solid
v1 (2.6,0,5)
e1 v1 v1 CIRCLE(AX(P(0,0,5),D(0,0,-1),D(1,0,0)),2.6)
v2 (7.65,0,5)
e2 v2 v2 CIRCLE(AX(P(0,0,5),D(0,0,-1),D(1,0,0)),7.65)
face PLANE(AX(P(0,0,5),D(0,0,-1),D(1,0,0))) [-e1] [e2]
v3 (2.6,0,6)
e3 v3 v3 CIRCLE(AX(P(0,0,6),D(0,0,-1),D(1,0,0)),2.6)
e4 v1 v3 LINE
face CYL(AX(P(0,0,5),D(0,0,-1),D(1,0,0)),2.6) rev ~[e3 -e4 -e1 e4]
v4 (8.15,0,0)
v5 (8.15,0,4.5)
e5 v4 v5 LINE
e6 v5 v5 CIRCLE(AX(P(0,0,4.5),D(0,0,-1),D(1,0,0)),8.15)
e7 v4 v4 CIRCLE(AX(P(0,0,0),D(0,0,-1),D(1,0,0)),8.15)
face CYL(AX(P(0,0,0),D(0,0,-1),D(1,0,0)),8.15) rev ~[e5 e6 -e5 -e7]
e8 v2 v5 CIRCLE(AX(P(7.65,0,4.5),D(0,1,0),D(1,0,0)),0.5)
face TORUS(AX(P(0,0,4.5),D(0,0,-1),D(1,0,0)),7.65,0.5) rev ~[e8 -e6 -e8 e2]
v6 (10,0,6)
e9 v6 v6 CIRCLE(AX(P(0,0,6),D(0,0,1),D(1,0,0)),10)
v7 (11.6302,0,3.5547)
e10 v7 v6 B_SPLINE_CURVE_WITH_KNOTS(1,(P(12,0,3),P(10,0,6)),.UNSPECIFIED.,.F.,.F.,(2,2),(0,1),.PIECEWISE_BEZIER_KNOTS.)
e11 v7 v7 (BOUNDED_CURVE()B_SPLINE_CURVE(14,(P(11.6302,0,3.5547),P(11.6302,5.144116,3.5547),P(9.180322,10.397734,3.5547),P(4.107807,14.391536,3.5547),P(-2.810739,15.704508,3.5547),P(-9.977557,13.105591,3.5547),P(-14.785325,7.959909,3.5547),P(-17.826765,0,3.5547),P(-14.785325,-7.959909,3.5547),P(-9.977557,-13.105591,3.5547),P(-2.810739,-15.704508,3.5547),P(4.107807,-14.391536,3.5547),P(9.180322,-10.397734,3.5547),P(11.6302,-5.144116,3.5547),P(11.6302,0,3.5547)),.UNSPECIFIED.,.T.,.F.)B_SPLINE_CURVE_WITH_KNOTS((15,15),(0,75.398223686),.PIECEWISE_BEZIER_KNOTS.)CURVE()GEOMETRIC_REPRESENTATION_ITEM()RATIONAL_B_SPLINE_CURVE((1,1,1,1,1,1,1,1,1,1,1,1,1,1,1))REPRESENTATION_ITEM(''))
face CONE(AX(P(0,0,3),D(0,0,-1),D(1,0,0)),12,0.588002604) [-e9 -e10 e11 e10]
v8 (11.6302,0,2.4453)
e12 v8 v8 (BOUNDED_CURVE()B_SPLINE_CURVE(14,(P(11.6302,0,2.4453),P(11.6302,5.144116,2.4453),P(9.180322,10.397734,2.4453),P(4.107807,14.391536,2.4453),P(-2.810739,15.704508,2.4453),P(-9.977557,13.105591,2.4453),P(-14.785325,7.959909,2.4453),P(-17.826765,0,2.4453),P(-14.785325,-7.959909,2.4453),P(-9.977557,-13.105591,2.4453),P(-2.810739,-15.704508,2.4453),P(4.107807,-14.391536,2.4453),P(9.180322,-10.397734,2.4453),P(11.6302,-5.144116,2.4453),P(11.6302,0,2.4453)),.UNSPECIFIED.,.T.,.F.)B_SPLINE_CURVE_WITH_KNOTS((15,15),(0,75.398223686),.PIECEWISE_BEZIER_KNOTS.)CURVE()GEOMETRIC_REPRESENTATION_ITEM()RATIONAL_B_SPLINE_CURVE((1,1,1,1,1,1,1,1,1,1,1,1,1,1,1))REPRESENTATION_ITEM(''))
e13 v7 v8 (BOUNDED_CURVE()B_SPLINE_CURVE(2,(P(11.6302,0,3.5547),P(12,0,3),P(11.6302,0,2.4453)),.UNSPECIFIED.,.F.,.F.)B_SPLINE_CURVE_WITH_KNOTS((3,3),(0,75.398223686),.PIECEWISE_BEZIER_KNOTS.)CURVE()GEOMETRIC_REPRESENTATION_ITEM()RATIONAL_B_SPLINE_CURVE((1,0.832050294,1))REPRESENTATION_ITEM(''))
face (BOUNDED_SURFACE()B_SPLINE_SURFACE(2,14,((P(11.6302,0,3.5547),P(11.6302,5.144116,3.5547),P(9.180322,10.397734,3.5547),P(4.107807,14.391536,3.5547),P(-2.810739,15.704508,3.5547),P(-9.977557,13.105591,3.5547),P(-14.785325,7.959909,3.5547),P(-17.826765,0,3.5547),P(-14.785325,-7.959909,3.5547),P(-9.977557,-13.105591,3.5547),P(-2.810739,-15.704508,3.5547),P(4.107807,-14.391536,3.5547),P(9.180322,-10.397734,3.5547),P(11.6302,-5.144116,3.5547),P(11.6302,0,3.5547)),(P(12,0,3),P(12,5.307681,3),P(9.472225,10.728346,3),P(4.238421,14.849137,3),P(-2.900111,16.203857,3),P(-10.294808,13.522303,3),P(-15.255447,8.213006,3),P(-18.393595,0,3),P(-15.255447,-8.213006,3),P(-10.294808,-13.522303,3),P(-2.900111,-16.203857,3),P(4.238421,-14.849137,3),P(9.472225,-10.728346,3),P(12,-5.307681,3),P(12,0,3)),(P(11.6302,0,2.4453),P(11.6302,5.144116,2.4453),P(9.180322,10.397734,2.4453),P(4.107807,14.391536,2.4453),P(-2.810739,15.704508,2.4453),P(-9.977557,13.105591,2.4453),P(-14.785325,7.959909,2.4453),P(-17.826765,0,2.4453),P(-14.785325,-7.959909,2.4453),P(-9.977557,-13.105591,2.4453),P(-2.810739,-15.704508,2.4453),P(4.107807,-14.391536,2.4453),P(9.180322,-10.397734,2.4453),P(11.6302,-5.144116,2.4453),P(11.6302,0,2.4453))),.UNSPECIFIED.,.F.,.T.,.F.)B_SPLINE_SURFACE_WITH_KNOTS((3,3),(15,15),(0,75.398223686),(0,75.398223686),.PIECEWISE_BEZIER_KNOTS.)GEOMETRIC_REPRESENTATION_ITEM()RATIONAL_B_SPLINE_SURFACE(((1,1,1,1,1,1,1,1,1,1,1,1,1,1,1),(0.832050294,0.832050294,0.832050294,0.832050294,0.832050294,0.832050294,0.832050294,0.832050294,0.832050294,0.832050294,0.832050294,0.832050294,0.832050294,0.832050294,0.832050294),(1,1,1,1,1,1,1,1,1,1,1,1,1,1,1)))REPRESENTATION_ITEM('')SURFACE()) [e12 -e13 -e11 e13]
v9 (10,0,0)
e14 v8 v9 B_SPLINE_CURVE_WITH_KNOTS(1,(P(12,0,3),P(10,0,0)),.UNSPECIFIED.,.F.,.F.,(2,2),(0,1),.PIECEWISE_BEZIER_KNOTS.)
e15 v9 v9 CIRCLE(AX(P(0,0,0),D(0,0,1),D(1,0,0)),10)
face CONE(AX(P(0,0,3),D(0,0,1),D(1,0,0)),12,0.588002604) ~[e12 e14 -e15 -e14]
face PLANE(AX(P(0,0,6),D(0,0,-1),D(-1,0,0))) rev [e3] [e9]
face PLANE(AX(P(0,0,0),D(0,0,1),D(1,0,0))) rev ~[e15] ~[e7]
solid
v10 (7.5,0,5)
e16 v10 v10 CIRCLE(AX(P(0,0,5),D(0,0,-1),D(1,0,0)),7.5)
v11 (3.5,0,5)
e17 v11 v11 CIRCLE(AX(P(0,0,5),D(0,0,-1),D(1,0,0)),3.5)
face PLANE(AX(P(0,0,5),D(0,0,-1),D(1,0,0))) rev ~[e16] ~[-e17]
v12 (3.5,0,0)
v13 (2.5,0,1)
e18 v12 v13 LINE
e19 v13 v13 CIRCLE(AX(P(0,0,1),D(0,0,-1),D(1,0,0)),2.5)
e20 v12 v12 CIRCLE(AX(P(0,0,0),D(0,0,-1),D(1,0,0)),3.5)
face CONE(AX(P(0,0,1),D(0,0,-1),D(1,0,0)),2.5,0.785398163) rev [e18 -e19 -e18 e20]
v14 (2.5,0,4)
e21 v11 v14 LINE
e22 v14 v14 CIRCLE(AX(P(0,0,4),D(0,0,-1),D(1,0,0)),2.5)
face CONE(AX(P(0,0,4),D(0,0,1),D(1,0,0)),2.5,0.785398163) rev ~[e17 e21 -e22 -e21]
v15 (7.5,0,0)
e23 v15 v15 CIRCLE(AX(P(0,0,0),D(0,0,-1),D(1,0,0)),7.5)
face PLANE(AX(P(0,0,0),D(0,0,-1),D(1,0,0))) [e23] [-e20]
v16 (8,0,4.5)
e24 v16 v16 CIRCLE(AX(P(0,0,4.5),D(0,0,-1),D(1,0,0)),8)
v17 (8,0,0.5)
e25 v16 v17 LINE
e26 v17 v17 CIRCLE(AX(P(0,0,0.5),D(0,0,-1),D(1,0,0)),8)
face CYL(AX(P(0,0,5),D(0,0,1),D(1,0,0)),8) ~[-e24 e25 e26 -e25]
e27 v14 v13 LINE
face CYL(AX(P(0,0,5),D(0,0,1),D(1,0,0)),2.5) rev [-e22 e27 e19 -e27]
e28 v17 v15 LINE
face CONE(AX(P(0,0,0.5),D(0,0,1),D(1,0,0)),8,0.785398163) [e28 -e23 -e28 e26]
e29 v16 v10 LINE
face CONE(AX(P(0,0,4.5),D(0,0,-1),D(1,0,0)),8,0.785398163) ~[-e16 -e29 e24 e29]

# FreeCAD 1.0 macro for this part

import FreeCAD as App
import Part
import Sketcher
from FreeCAD import Vector
Q = App.Units.Quantity


def edges_at(feature, points):
    """Names of the edges that pass closest to the given points."""
    edges = feature.Shape.Edges
    near = lambda p: min(range(len(edges)), key=lambda i: edges[i].distToShape(Part.Vertex(*p))[0])
    return sorted({f"Edge{near(p) + 1}" for p in points})

doc = App.newDocument("Part")
body = doc.addObject("PartDesign::Body", "Body")

sketch1 = doc.addObject("Sketcher::SketchObject", "Sketch")
body.addObject(sketch1)
sketch1.AttachmentSupport = (doc.XY_Plane, [""])
sketch1.MapMode = "FlatFace"
sketch1.AttachmentOffset = App.Placement(Vector(0, 0, 3), App.Rotation())
sketch1.addGeometry(Part.Circle(Vector(0, 0, 0), Vector(0, 0, 1), 12), False)
sketch1.addConstraint([
    Sketcher.Constraint("Coincident", 0, 3, -1, 1),
    Sketcher.Constraint("Diameter", 0, Q("24 mm")),
])

sketch2 = doc.addObject("Sketcher::SketchObject", "Sketch001")
body.addObject(sketch2)
sketch2.AttachmentSupport = (doc.XY_Plane, [""])
sketch2.MapMode = "FlatFace"
sketch2.addGeometry(Part.Circle(Vector(0, 0, 0), Vector(0, 0, 1), 10), False)
sketch2.addConstraint([
    Sketcher.Constraint("Coincident", 0, 3, -1, 1),
    Sketcher.Constraint("Diameter", 0, Q("20 mm")),
])

additiveloft = doc.addObject("PartDesign::AdditiveLoft", "AdditiveLoft")
body.addObject(additiveloft)
additiveloft.Profile = sketch1
additiveloft.Sections = [sketch2]
body2 = doc.addObject("PartDesign::Body", "Body001")
doc.recompute()

body2.BaseFeature = body
doc.recompute()

mirroring = doc.addObject("Part::Mirroring", "Mirroring")
mirroring.Source = body
mirroring.Base = Vector(0, 0, 3)
mirroring.Normal = Vector(0, 0, 1)
body3 = doc.addObject("PartDesign::Body", "Body002")
body3.BaseFeature = mirroring
boolean = doc.addObject("PartDesign::Boolean", "Boolean")
body2.addObject(boolean)
boolean.Type = "Fuse"
boolean.addObjects([body3])
doc.recompute()

sketch3 = doc.addObject("Sketcher::SketchObject", "Sketch002")
body2.addObject(sketch3)
sketch3.AttachmentSupport = (doc.getObject("XY_Plane001"), [""])
sketch3.MapMode = "FlatFace"
sketch3.addGeometry(Part.Circle(Vector(0, 0, 0), Vector(0, 0, 1), 8), False)
sketch3.addConstraint([
    Sketcher.Constraint("Coincident", 0, 3, -1, 1),
    Sketcher.Constraint("Diameter", 0, Q("16.3 mm")),
])
pocket1 = doc.addObject("PartDesign::Pocket", "Pocket")
body2.addObject(pocket1)
pocket1.Profile = sketch3
pocket1.Length = 5
pocket1.Reversed = True

sketch4 = doc.addObject("Sketcher::SketchObject", "Sketch003")
body2.addObject(sketch4)
sketch4.AttachmentSupport = (doc.getObject("XY_Plane001"), [""])
sketch4.MapMode = "FlatFace"
sketch4.AttachmentOffset = App.Placement(Vector(0, 0, 5), App.Rotation())
sketch4.addGeometry(Part.Circle(Vector(0, 0, 0), Vector(0, 0, 1), 2.6), False)
sketch4.addConstraint([
    Sketcher.Constraint("Coincident", 0, 3, -1, 1),
    Sketcher.Constraint("Diameter", 0, Q("5.2 mm")),
])
pocket2 = doc.addObject("PartDesign::Pocket", "Pocket001")
body2.addObject(pocket2)
pocket2.Profile = sketch4
pocket2.Type = "ThroughAll"
pocket2.Reversed = True
doc.recompute()

fillet = doc.addObject("PartDesign::Fillet", "Fillet")
body2.addObject(fillet)
fillet.Base = (pocket2, edges_at(pocket2, [(-12, 0, 3)]))
fillet.Radius = 1
doc.recompute()

fillet2 = doc.addObject("PartDesign::Fillet", "Fillet001")
body2.addObject(fillet2)
fillet2.Base = (fillet, edges_at(fillet, [(-8.15, 0, 5)]))
fillet2.Radius = 0.5
body4 = doc.addObject("PartDesign::Body", "Body003")

sketch5 = doc.addObject("Sketcher::SketchObject", "Sketch004")
body4.addObject(sketch5)
sketch5.AttachmentSupport = (doc.getObject("XY_Plane003"), [""])
sketch5.MapMode = "FlatFace"
sketch5.AttachmentOffset = App.Placement(Vector(0, 0, 5), App.Rotation())
sketch5.addGeometry([
    Part.Circle(Vector(0, 0, 0), Vector(0, 0, 1), 8),
    Part.Circle(Vector(0, 0, 0), Vector(0, 0, 1), 2.5),
], False)
sketch5.addConstraint([
    Sketcher.Constraint("Coincident", 0, 3, -1, 1),
    Sketcher.Constraint("Coincident", 1, 3, -1, 1),
    Sketcher.Constraint("Diameter", 0, Q("16 mm")),
    Sketcher.Constraint("Diameter", 1, Q("5 mm")),
])
pad1 = doc.addObject("PartDesign::Pad", "Pad")
body4.addObject(pad1)
pad1.Profile = sketch5
pad1.Length = 5
pad1.Reversed = True
doc.recompute()

chamfer = doc.addObject("PartDesign::Chamfer", "Chamfer")
body4.addObject(chamfer)
chamfer.Base = (pad1, edges_at(pad1, [(-8, 0, 0), (-8, 0, 5)]))
chamfer.Size = 0.5
doc.recompute()

chamfer2 = doc.addObject("PartDesign::Chamfer", "Chamfer001")
body4.addObject(chamfer2)
chamfer2.Base = (chamfer, edges_at(chamfer, [(-2.5, 0, 0), (-2.5, 0, 5)]))
chamfer2.Size = 1
mirroring.Visibility = False

doc.recompute()
